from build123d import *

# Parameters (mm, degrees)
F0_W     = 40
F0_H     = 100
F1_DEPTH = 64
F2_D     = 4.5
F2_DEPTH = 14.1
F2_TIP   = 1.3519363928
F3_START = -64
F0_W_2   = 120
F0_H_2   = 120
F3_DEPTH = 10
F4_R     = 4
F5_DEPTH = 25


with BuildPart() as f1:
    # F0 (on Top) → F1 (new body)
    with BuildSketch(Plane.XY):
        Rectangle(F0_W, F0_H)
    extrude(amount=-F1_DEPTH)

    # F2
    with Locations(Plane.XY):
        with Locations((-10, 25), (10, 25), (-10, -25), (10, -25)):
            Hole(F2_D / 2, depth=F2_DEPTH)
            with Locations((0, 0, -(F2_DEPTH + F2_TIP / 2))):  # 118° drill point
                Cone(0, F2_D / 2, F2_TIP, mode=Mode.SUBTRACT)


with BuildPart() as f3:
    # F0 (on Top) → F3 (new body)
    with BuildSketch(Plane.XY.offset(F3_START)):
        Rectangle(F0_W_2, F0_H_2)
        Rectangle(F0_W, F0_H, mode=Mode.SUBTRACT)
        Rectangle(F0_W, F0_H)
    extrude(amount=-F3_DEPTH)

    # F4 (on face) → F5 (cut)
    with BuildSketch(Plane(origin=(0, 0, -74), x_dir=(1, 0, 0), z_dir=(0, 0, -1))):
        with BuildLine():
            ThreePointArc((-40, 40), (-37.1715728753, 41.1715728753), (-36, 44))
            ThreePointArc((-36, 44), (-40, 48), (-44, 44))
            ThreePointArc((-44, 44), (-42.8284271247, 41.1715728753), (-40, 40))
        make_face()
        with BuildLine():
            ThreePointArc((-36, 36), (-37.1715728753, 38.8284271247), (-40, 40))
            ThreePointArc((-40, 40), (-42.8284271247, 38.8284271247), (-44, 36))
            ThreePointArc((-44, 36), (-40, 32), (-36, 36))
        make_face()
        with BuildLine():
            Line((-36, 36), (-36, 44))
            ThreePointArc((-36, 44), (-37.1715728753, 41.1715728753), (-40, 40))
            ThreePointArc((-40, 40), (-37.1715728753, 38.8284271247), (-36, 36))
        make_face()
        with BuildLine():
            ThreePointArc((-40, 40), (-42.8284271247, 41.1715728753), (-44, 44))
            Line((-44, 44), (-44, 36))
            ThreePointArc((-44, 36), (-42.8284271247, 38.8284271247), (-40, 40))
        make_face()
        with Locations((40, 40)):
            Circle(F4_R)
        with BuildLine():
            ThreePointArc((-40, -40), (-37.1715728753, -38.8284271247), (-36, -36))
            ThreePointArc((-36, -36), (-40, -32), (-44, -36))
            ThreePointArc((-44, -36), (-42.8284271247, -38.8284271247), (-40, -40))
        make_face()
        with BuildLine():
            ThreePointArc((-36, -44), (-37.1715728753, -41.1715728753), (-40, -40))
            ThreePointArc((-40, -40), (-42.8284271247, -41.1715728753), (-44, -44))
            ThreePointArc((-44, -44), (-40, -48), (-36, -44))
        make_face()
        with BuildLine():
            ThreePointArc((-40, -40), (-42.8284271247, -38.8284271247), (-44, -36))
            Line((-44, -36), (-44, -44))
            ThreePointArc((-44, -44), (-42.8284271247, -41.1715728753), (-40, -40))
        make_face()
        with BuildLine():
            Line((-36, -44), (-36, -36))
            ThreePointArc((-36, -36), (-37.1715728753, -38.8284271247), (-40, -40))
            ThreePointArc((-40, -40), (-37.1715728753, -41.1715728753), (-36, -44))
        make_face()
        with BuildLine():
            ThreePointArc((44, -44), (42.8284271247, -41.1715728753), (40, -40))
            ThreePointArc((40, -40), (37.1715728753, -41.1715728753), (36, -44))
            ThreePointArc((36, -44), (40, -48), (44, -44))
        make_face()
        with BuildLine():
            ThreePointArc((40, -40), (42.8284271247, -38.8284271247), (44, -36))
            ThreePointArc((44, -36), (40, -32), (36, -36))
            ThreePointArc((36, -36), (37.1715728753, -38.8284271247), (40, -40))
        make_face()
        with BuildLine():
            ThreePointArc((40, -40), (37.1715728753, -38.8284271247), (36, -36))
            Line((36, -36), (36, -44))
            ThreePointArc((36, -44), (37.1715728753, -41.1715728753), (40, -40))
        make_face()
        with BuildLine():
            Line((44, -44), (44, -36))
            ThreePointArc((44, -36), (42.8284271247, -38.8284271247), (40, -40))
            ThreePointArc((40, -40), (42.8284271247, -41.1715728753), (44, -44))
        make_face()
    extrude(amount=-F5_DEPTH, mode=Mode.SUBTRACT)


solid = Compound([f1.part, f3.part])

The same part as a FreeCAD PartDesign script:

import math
import FreeCAD as App
import Part
import Sketcher
from FreeCAD import Vector

doc = App.newDocument("Part")
params = doc.addObject("Spreadsheet::Sheet", "Params")
for row, (alias, value) in enumerate([
    ("sketch1_width", "40 mm"),
    ("sketch1_height", "100 mm"),
    ("pad1_length", "64 mm"),
    ("sketch2_diameter", "4.5 mm"),
    ("hole_diameter", "4.5 mm"),
    ("hole_depth", "14.1 mm"),
    ("sketch3_width", "120 mm"),
    ("pad2_length", "10 mm"),
    ("sketch4_diameter", "8 mm"),
    ("sketch4_height", "8 mm"),
    ("pocket1_length", "25 mm"),
], start=1):
    params.set(f"A{row}", alias)
    params.set(f"B{row}", "=" + value)
    params.setAlias(f"B{row}", alias)

body = doc.addObject("PartDesign::Body", "Body")

# Sketch on XY plane
sketch1 = doc.addObject("Sketcher::SketchObject", "Sketch")
body.addObject(sketch1)
sketch1.AttachmentSupport = (doc.XY_Plane, [""])
sketch1.MapMode = "FlatFace"
sketch1.addGeometry(Part.LineSegment(Vector(-20, 50, 0), Vector(-20, -50, 0)), False)
sketch1.addGeometry(Part.LineSegment(Vector(-20, -50, 0), Vector(20, -50, 0)), False)
sketch1.addGeometry(Part.LineSegment(Vector(20, -50, 0), Vector(20, 50, 0)), False)
sketch1.addGeometry(Part.LineSegment(Vector(20, 50, 0), Vector(-20, 50, 0)), False)
sketch1.addConstraint(Sketcher.Constraint("Coincident", 0, 2, 1, 1))
sketch1.addConstraint(Sketcher.Constraint("Coincident", 1, 2, 2, 1))
sketch1.addConstraint(Sketcher.Constraint("Coincident", 2, 2, 3, 1))
sketch1.addConstraint(Sketcher.Constraint("Coincident", 3, 2, 0, 1))
sketch1.addConstraint(Sketcher.Constraint("Vertical", 0))
sketch1.addConstraint(Sketcher.Constraint("Horizontal", 1))
sketch1.addConstraint(Sketcher.Constraint("Vertical", 2))
sketch1.addConstraint(Sketcher.Constraint("Horizontal", 3))
sketch1.addConstraint(Sketcher.Constraint("Symmetric", 0, 2, 2, 2, -1, 1))
sketch1.addConstraint(Sketcher.Constraint("DistanceX", 1, 1, 1, 2, 40.0))
sketch1.addConstraint(Sketcher.Constraint("DistanceY", 0, 2, 0, 1, 100.0))
sketch1.setExpression("Constraints[9]", "Params.sketch1_width")
sketch1.setExpression("Constraints[10]", "Params.sketch1_height")
pad1 = doc.addObject("PartDesign::Pad", "Pad")
body.addObject(pad1)
pad1.Profile = sketch1
pad1.setExpression("Length", "Params.pad1_length")
pad1.Reversed = True

# Sketch on XY plane
sketch2 = doc.addObject("Sketcher::SketchObject", "Sketch001")
body.addObject(sketch2)
sketch2.AttachmentSupport = (doc.XY_Plane, [""])
sketch2.MapMode = "FlatFace"
sketch2.addGeometry(Part.Circle(Vector(-10, 25, 0), Vector(0, 0, 1), 2.2), False)
sketch2.addGeometry(Part.Circle(Vector(10, 25, 0), Vector(0, 0, 1), 2.2), False)
sketch2.addGeometry(Part.Circle(Vector(-10, -25, 0), Vector(0, 0, 1), 2.2), False)
sketch2.addGeometry(Part.Circle(Vector(10, -25, 0), Vector(0, 0, 1), 2.2), False)
sketch2.addConstraint(Sketcher.Constraint("Equal", 0, 1))
sketch2.addConstraint(Sketcher.Constraint("Equal", 1, 2))
sketch2.addConstraint(Sketcher.Constraint("Equal", 2, 3))
sketch2.addConstraint(Sketcher.Constraint("Symmetric", 1, 3, 2, 3, -1, 1))
sketch2.addConstraint(Sketcher.Constraint("Symmetric", 0, 3, 3, 3, -1, 1))
sketch2.addConstraint(Sketcher.Constraint("Symmetric", 0, 3, 1, 3, -2))
sketch2.addConstraint(Sketcher.Constraint("Diameter", 0, 4.5))
sketch2.addConstraint(Sketcher.Constraint("DistanceX", 0, 3, -1, 1, 10.0))
sketch2.addConstraint(Sketcher.Constraint("DistanceY", -1, 1, 0, 3, 25.0))
sketch2.setExpression("Constraints[6]", "Params.sketch2_diameter")
doc.recompute()
hole = doc.addObject("PartDesign::Hole", "Hole")
body.addObject(hole)
hole.Profile = sketch2
hole.ThreadType = "None"
hole.setExpression("Diameter", "Params.hole_diameter")
hole.DepthType = "Dimension"
hole.setExpression("Depth", "Params.hole_depth")
hole.DrillPoint = "Angled"
hole.DrillPointAngle = 118
body2 = doc.addObject("PartDesign::Body", "Body001")

# Sketch on XY plane
sketch3 = doc.addObject("Sketcher::SketchObject", "Sketch002")
body2.addObject(sketch3)
sketch3.AttachmentSupport = (doc.getObject("XY_Plane001"), [""])
sketch3.MapMode = "FlatFace"
sketch3.AttachmentOffset = App.Placement(Vector(0, 0, -64), App.Rotation())
sketch3.addGeometry(Part.LineSegment(Vector(-60, 60, 0), Vector(-60, -60, 0)), False)
sketch3.addGeometry(Part.LineSegment(Vector(-60, -60, 0), Vector(60, -60, 0)), False)
sketch3.addGeometry(Part.LineSegment(Vector(60, -60, 0), Vector(60, 60, 0)), False)
sketch3.addGeometry(Part.LineSegment(Vector(60, 60, 0), Vector(-60, 60, 0)), False)
sketch3.addConstraint(Sketcher.Constraint("Coincident", 0, 2, 1, 1))
sketch3.addConstraint(Sketcher.Constraint("Coincident", 1, 2, 2, 1))
sketch3.addConstraint(Sketcher.Constraint("Coincident", 2, 2, 3, 1))
sketch3.addConstraint(Sketcher.Constraint("Coincident", 3, 2, 0, 1))
sketch3.addConstraint(Sketcher.Constraint("Vertical", 0))
sketch3.addConstraint(Sketcher.Constraint("Horizontal", 1))
sketch3.addConstraint(Sketcher.Constraint("Vertical", 2))
sketch3.addConstraint(Sketcher.Constraint("Horizontal", 3))
sketch3.addConstraint(Sketcher.Constraint("Symmetric", 0, 2, 2, 2, -1, 1))
sketch3.addConstraint(Sketcher.Constraint("Equal", 3, 0))
sketch3.addConstraint(Sketcher.Constraint("DistanceX", 1, 1, 1, 2, 120.0))
sketch3.setExpression("Constraints[10]", "Params.sketch3_width")
pad2 = doc.addObject("PartDesign::Pad", "Pad001")
body2.addObject(pad2)
pad2.Profile = sketch3
pad2.setExpression("Length", "Params.pad2_length")
pad2.Reversed = True

# Sketch on XY plane
sketch4 = doc.addObject("Sketcher::SketchObject", "Sketch003")
body2.addObject(sketch4)
sketch4.AttachmentSupport = (doc.getObject("XY_Plane001"), [""])
sketch4.MapMode = "FlatFace"
sketch4.AttachmentOffset = App.Placement(Vector(0, 0, -74), App.Rotation())
sketch4.addGeometry(Part.ArcOfCircle(Part.Circle(Vector(-40, -44, 0), Vector(0, 0, 1), 4), math.radians(180), math.radians(360)), False)
sketch4.addGeometry(Part.LineSegment(Vector(-44, -44, 0), Vector(-44, -36, 0)), False)
sketch4.addGeometry(Part.ArcOfCircle(Part.Circle(Vector(-40, -36, 0), Vector(0, 0, 1), 4), math.radians(0), math.radians(180)), False)
sketch4.addGeometry(Part.LineSegment(Vector(-36, -36, 0), Vector(-36, -44, 0)), False)
sketch4.addGeometry(Part.Circle(Vector(40, -40, 0), Vector(0, 0, 1), 4), False)
sketch4.addGeometry(Part.ArcOfCircle(Part.Circle(Vector(-40, 36, 0), Vector(0, 0, 1), 4), math.radians(180), math.radians(360)), False)
sketch4.addGeometry(Part.LineSegment(Vector(-44, 36, 0), Vector(-44, 44, 0)), False)
sketch4.addGeometry(Part.ArcOfCircle(Part.Circle(Vector(-40, 44, 0), Vector(0, 0, 1), 4), math.radians(0), math.radians(180)), False)
sketch4.addGeometry(Part.LineSegment(Vector(-36, 44, 0), Vector(-36, 36, 0)), False)
sketch4.addGeometry(Part.ArcOfCircle(Part.Circle(Vector(40, 36, 0), Vector(0, 0, 1), 4), math.radians(180), math.radians(360)), False)
sketch4.addGeometry(Part.LineSegment(Vector(36, 36, 0), Vector(36, 44, 0)), False)
sketch4.addGeometry(Part.ArcOfCircle(Part.Circle(Vector(40, 44, 0), Vector(0, 0, 1), 4), math.radians(0), math.radians(180)), False)
sketch4.addGeometry(Part.LineSegment(Vector(44, 44, 0), Vector(44, 36, 0)), False)
sketch4.addConstraint(Sketcher.Constraint("Tangent", 0, 1, 1, 1))
sketch4.addConstraint(Sketcher.Constraint("Tangent", 1, 2, 2, 2))
sketch4.addConstraint(Sketcher.Constraint("Tangent", 2, 1, 3, 1))
sketch4.addConstraint(Sketcher.Constraint("Tangent", 3, 2, 0, 2))
sketch4.addConstraint(Sketcher.Constraint("Tangent", 5, 1, 6, 1))
sketch4.addConstraint(Sketcher.Constraint("Tangent", 6, 2, 7, 2))
sketch4.addConstraint(Sketcher.Constraint("Tangent", 7, 1, 8, 1))
sketch4.addConstraint(Sketcher.Constraint("Tangent", 8, 2, 5, 2))
sketch4.addConstraint(Sketcher.Constraint("Tangent", 9, 1, 10, 1))
sketch4.addConstraint(Sketcher.Constraint("Tangent", 10, 2, 11, 2))
sketch4.addConstraint(Sketcher.Constraint("Tangent", 11, 1, 12, 1))
sketch4.addConstraint(Sketcher.Constraint("Tangent", 12, 2, 9, 2))
sketch4.addConstraint(Sketcher.Constraint("Vertical", 1))
sketch4.addConstraint(Sketcher.Constraint("Vertical", 3))
sketch4.addConstraint(Sketcher.Constraint("Vertical", 6))
sketch4.addConstraint(Sketcher.Constraint("Vertical", 8))
sketch4.addConstraint(Sketcher.Constraint("Vertical", 10))
sketch4.addConstraint(Sketcher.Constraint("Vertical", 12))
sketch4.addConstraint(Sketcher.Constraint("Equal", 2, 4))
sketch4.addConstraint(Sketcher.Constraint("Equal", 4, 5))
sketch4.addConstraint(Sketcher.Constraint("Equal", 7, 9))
sketch4.addConstraint(Sketcher.Constraint("Symmetric", 2, 3, 9, 3, -1, 1))
sketch4.addConstraint(Sketcher.Constraint("Symmetric", 5, 3, 9, 3, -2))
sketch4.addConstraint(Sketcher.Constraint("Horizontal", 7, 3, 11, 3))
sketch4.addConstraint(Sketcher.Constraint("Vertical", 4, 3, 9, 3))
sketch4.addConstraint(Sketcher.Constraint("Equal", 3, 6))
sketch4.addConstraint(Sketcher.Constraint("Diameter", 4, 8.0))
sketch4.addConstraint(Sketcher.Constraint("DistanceY", 1, 1, 1, 2, 8.0))
sketch4.addConstraint(Sketcher.Constraint("DistanceX", 0, 3, -1, 1, 40.0))
sketch4.addConstraint(Sketcher.Constraint("DistanceY", 0, 3, -1, 1, 44.0))
sketch4.addConstraint(Sketcher.Constraint("DistanceY", 4, 3, -1, 1, 40.0))
sketch4.setExpression("Constraints[26]", "Params.sketch4_diameter")
sketch4.setExpression("Constraints[27]", "Params.sketch4_height")
pocket1 = doc.addObject("PartDesign::Pocket", "Pocket")
body2.addObject(pocket1)
pocket1.Profile = sketch4
pocket1.setExpression("Length", "Params.pocket1_length")
pocket1.Reversed = True

doc.recompute()
